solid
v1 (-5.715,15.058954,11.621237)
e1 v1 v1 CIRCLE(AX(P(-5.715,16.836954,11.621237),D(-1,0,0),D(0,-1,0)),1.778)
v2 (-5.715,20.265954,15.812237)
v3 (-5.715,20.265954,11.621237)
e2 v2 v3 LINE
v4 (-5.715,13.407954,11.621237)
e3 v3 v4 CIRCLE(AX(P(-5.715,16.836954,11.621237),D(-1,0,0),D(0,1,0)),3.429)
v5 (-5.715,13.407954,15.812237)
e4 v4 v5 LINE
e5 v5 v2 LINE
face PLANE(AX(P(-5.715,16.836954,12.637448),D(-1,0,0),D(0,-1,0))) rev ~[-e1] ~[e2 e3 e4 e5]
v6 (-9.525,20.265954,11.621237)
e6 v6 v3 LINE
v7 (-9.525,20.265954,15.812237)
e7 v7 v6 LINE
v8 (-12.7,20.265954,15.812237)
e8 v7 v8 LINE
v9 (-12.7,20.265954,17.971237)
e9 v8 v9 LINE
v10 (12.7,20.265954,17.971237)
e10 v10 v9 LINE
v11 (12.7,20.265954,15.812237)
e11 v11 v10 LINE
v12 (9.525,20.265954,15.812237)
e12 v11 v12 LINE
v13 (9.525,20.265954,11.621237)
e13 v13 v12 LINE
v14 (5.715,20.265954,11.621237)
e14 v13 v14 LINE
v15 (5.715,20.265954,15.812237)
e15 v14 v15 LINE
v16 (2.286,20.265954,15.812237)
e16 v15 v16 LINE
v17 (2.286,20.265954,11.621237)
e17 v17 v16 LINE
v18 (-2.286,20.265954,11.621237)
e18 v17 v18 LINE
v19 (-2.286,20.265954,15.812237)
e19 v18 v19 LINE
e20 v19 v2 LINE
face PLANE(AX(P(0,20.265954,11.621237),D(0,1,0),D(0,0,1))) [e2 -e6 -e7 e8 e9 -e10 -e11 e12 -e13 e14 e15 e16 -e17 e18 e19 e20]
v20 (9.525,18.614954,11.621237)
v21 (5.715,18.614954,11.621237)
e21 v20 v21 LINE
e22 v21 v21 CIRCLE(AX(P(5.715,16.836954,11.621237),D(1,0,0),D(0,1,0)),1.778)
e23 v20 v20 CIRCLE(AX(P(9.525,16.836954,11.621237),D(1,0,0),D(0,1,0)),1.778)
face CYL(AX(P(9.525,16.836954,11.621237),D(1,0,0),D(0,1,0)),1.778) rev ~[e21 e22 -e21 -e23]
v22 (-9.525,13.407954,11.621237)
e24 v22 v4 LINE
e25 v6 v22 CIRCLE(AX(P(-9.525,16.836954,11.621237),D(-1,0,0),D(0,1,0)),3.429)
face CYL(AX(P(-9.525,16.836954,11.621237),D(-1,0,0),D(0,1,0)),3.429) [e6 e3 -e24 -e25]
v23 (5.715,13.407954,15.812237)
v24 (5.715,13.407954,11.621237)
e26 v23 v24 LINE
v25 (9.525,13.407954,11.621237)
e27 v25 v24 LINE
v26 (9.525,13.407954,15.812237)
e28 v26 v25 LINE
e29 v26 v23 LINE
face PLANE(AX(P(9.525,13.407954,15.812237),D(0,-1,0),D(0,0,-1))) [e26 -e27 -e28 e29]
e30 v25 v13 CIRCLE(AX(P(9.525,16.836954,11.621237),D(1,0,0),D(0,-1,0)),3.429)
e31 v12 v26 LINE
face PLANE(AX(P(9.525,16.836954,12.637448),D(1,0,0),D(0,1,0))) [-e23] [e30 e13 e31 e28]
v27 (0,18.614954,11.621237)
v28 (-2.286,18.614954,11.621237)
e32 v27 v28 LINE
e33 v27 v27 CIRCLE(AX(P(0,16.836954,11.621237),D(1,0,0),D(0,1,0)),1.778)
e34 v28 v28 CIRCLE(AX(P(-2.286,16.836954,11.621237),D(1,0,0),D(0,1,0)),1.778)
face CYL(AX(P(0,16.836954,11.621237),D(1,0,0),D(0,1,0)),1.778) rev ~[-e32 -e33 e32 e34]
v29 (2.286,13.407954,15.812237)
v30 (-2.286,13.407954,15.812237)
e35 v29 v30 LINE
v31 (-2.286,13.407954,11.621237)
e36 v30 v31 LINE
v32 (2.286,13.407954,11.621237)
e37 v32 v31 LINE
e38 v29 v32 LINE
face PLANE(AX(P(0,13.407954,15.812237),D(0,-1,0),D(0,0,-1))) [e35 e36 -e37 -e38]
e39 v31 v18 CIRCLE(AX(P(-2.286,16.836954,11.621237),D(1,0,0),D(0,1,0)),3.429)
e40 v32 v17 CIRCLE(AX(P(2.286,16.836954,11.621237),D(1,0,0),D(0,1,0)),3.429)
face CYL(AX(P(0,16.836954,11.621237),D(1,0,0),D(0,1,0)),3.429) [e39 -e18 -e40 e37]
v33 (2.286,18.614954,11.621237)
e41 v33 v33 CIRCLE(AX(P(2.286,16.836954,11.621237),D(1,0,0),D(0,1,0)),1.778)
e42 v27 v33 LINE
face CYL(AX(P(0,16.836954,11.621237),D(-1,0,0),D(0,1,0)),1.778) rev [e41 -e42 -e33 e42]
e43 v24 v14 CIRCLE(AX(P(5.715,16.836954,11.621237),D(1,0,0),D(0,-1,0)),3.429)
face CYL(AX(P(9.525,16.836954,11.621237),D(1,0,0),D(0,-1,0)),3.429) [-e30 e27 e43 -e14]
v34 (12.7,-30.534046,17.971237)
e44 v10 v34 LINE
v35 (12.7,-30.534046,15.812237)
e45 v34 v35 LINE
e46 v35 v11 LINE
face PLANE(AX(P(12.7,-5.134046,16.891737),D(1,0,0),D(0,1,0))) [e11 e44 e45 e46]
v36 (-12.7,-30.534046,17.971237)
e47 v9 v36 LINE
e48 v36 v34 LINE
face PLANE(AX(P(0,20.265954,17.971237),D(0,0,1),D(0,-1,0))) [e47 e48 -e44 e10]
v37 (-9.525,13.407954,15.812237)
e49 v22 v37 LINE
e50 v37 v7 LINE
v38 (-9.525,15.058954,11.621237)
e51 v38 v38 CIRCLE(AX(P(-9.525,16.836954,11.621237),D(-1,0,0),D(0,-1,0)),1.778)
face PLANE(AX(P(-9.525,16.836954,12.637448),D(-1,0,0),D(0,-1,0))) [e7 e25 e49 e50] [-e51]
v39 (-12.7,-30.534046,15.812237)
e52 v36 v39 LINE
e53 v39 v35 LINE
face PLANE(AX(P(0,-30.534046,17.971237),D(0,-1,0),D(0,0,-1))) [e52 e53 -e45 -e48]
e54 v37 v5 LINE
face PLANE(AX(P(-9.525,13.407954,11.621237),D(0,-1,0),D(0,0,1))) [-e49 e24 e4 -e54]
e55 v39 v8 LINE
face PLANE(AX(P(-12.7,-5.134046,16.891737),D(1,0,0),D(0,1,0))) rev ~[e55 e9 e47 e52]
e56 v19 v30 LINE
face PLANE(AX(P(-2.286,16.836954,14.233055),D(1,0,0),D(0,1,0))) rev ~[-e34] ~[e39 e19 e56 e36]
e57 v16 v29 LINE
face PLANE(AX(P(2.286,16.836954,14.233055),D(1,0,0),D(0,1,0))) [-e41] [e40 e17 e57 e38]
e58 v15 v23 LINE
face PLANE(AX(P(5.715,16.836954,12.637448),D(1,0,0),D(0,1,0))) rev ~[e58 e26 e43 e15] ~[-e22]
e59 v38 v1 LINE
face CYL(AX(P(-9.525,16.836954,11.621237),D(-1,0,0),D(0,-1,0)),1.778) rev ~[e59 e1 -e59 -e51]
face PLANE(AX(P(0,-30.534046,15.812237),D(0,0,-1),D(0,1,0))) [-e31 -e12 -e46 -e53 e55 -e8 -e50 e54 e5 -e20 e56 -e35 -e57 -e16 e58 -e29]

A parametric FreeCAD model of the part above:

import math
import FreeCAD as App
import Part
import Sketcher
Q = App.Units.Quantity

doc = App.newDocument("Part")
body = doc.addObject("PartDesign::Body", "Body")

# Sketch on YZ plane
sketch1 = body.newObject("Sketcher::SketchObject", "Sketch")
sketch1.AttachmentSupport = (doc.getObject("YZ_Plane"), [""])
sketch1.MapMode = "FlatFace"
sketch1.addGeometry(Part.LineSegment(App.Vector(20.3, 18, 0), App.Vector(-30.5, 18, 0)), False)
sketch1.addGeometry(Part.LineSegment(App.Vector(-30.5, 18, 0), App.Vector(-30.5, 15.8, 0)), False)
sketch1.addGeometry(Part.LineSegment(App.Vector(-30.5, 15.8, 0), App.Vector(20.3, 15.8, 0)), False)
sketch1.addGeometry(Part.LineSegment(App.Vector(20.3, 15.8, 0), App.Vector(20.3, 18, 0)), False)
sketch1.addConstraint(Sketcher.Constraint("Coincident", 0, 2, 1, 1))
sketch1.addConstraint(Sketcher.Constraint("Coincident", 1, 2, 2, 1))
sketch1.addConstraint(Sketcher.Constraint("Coincident", 2, 2, 3, 1))
sketch1.addConstraint(Sketcher.Constraint("Coincident", 3, 2, 0, 1))
sketch1.addConstraint(Sketcher.Constraint("Horizontal", 0))
sketch1.addConstraint(Sketcher.Constraint("Vertical", 1))
sketch1.addConstraint(Sketcher.Constraint("Horizontal", 2))
sketch1.addConstraint(Sketcher.Constraint("Vertical", 3))
sketch1.addConstraint(Sketcher.Constraint("DistanceX", 0, 2, 0, 1, Q("2 in")))
sketch1.addConstraint(Sketcher.Constraint("DistanceY", 1, 2, 1, 1, Q("0.085 in")))
sketch1.addConstraint(Sketcher.Constraint("DistanceX", 0, 2, -1, 1, Q("30.534046 mm")))
sketch1.addConstraint(Sketcher.Constraint("DistanceY", -1, 1, 0, 2, Q("17.971237 mm")))
pad1 = body.newObject("PartDesign::Pad", "Pad")
pad1.Profile = sketch1
pad1.Type = "TwoLengths"
pad1.Length = Q("0.5 in")
pad1.Length2 = Q("0.5 in")

# Sketch on YZ plane
sketch2 = body.newObject("Sketcher::SketchObject", "Sketch001")
sketch2.AttachmentSupport = (doc.getObject("YZ_Plane"), [""])
sketch2.MapMode = "FlatFace"
sketch2.addGeometry(Part.LineSegment(App.Vector(20.3, 11.6, 0), App.Vector(20.3, 15.8, 0)), False)
sketch2.addGeometry(Part.LineSegment(App.Vector(20.3, 15.8, 0), App.Vector(13.4, 15.8, 0)), False)
sketch2.addGeometry(Part.LineSegment(App.Vector(13.4, 15.8, 0), App.Vector(13.4, 11.6, 0)), False)
sketch2.addGeometry(Part.ArcOfCircle(Part.Circle(App.Vector(16.8, 11.6, 0), App.Vector(0, 0, 1), 3.4), math.radians(180), math.radians(360)), False)
sketch2.addGeometry(Part.Circle(App.Vector(16.8, 11.6, 0), App.Vector(0, 0, 1), 1.8), False)
sketch2.addConstraint(Sketcher.Constraint("Coincident", 0, 2, 1, 1))
sketch2.addConstraint(Sketcher.Constraint("Coincident", 1, 2, 2, 1))
sketch2.addConstraint(Sketcher.Constraint("Tangent", 2, 2, 3, 1))
sketch2.addConstraint(Sketcher.Constraint("Tangent", 3, 2, 0, 1))
sketch2.addConstraint(Sketcher.Constraint("Vertical", 0))
sketch2.addConstraint(Sketcher.Constraint("Horizontal", 1))
sketch2.addConstraint(Sketcher.Constraint("Vertical", 2))
sketch2.addConstraint(Sketcher.Constraint("Coincident", 4, 3, 3, 3))
sketch2.addConstraint(Sketcher.Constraint("Diameter", 4, Q("0.14 in")))
sketch2.addConstraint(Sketcher.Constraint("Radius", 3, Q("0.135 in")))
sketch2.addConstraint(Sketcher.Constraint("DistanceY", 0, 1, 0, 2, Q("0.165 in")))
sketch2.addConstraint(Sketcher.Constraint("DistanceX", -1, 1, 3, 3, Q("16.836954 mm")))
sketch2.addConstraint(Sketcher.Constraint("DistanceY", -1, 1, 3, 3, Q("11.621237 mm")))
pad2 = body.newObject("PartDesign::Pad", "Pad001")
pad2.Profile = sketch2
pad2.Type = "TwoLengths"
pad2.Length = Q("0.09 in")
pad2.Length2 = Q("0.09 in")

# Sketch on YZ plane
sketch3 = body.newObject("Sketcher::SketchObject", "Sketch002")
sketch3.AttachmentSupport = (doc.getObject("YZ_Plane"), [""])
sketch3.MapMode = "FlatFace"
sketch3.AttachmentOffset = App.Placement(App.Vector(0, 0, 0.375 * 25.4), App.Rotation())
sketch3.addGeometry(Part.LineSegment(App.Vector(20.3, 15.8, 0), App.Vector(13.4, 15.8, 0)), False)
sketch3.addGeometry(Part.LineSegment(App.Vector(13.4, 15.8, 0), App.Vector(13.4, 11.6, 0)), False)
sketch3.addGeometry(Part.ArcOfCircle(Part.Circle(App.Vector(16.8, 11.6, 0), App.Vector(0, 0, 1), 3.4), math.radians(180), math.radians(360)), False)
sketch3.addGeometry(Part.LineSegment(App.Vector(20.3, 11.6, 0), App.Vector(20.3, 15.8, 0)), False)
sketch3.addGeometry(Part.Circle(App.Vector(16.8, 11.6, 0), App.Vector(0, 0, 1), 1.8), False)
sketch3.addConstraint(Sketcher.Constraint("Coincident", 0, 2, 1, 1))
sketch3.addConstraint(Sketcher.Constraint("Tangent", 1, 2, 2, 1))
sketch3.addConstraint(Sketcher.Constraint("Tangent", 2, 2, 3, 1))
sketch3.addConstraint(Sketcher.Constraint("Coincident", 3, 2, 0, 1))
sketch3.addConstraint(Sketcher.Constraint("Horizontal", 0))
sketch3.addConstraint(Sketcher.Constraint("Vertical", 1))
sketch3.addConstraint(Sketcher.Constraint("Vertical", 3))
sketch3.addConstraint(Sketcher.Constraint("Coincident", 4, 3, 2, 3))
sketch3.addConstraint(Sketcher.Constraint("Diameter", 4, Q("0.14 in")))
sketch3.addConstraint(Sketcher.Constraint("Radius", 2, Q("0.135 in")))
sketch3.addConstraint(Sketcher.Constraint("DistanceY", 1, 2, 1, 1, Q("0.165 in")))
sketch3.addConstraint(Sketcher.Constraint("DistanceX", -1, 1, 2, 3, Q("16.836954 mm")))
sketch3.addConstraint(Sketcher.Constraint("DistanceY", -1, 1, 2, 3, Q("11.621237 mm")))
pad3 = body.newObject("PartDesign::Pad", "Pad002")
pad3.Profile = sketch3
pad3.Length = Q("0.15 in")
pad3.Reversed = True

# Sketch on YZ plane
sketch4 = body.newObject("Sketcher::SketchObject", "Sketch003")
sketch4.AttachmentSupport = (doc.getObject("YZ_Plane"), [""])
sketch4.MapMode = "FlatFace"
sketch4.AttachmentOffset = App.Placement(App.Vector(0, 0, -0.375 * 25.4), App.Rotation())
sketch4.addGeometry(Part.LineSegment(App.Vector(13.4, 11.6, 0), App.Vector(13.4, 15.8, 0)), False)
sketch4.addGeometry(Part.LineSegment(App.Vector(13.4, 15.8, 0), App.Vector(20.3, 15.8, 0)), False)
sketch4.addGeometry(Part.LineSegment(App.Vector(20.3, 15.8, 0), App.Vector(20.3, 11.6, 0)), False)
sketch4.addGeometry(Part.ArcOfCircle(Part.Circle(App.Vector(16.8, 11.6, 0), App.Vector(0, 0, 1), 3.4), math.radians(180), math.radians(360)), False)
sketch4.addGeometry(Part.Circle(App.Vector(16.8, 11.6, 0), App.Vector(0, 0, 1), 1.8), False)
sketch4.addConstraint(Sketcher.Constraint("Coincident", 0, 2, 1, 1))
sketch4.addConstraint(Sketcher.Constraint("Coincident", 1, 2, 2, 1))
sketch4.addConstraint(Sketcher.Constraint("Tangent", 2, 2, 3, 2))
sketch4.addConstraint(Sketcher.Constraint("Tangent", 3, 1, 0, 1))
sketch4.addConstraint(Sketcher.Constraint("Vertical", 0))
sketch4.addConstraint(Sketcher.Constraint("Horizontal", 1))
sketch4.addConstraint(Sketcher.Constraint("Vertical", 2))
sketch4.addConstraint(Sketcher.Constraint("Coincident", 4, 3, 3, 3))
sketch4.addConstraint(Sketcher.Constraint("Diameter", 4, Q("0.14 in")))
sketch4.addConstraint(Sketcher.Constraint("Radius", 3, Q("0.135 in")))
sketch4.addConstraint(Sketcher.Constraint("DistanceY", 0, 1, 0, 2, Q("0.165 in")))
sketch4.addConstraint(Sketcher.Constraint("DistanceX", -1, 1, 3, 3, Q("16.836954 mm")))
sketch4.addConstraint(Sketcher.Constraint("DistanceY", -1, 1, 3, 3, Q("11.621237 mm")))
pad4 = body.newObject("PartDesign::Pad", "Pad003")
pad4.Profile = sketch4
pad4.Length = Q("0.15 in")

doc.recompute()
